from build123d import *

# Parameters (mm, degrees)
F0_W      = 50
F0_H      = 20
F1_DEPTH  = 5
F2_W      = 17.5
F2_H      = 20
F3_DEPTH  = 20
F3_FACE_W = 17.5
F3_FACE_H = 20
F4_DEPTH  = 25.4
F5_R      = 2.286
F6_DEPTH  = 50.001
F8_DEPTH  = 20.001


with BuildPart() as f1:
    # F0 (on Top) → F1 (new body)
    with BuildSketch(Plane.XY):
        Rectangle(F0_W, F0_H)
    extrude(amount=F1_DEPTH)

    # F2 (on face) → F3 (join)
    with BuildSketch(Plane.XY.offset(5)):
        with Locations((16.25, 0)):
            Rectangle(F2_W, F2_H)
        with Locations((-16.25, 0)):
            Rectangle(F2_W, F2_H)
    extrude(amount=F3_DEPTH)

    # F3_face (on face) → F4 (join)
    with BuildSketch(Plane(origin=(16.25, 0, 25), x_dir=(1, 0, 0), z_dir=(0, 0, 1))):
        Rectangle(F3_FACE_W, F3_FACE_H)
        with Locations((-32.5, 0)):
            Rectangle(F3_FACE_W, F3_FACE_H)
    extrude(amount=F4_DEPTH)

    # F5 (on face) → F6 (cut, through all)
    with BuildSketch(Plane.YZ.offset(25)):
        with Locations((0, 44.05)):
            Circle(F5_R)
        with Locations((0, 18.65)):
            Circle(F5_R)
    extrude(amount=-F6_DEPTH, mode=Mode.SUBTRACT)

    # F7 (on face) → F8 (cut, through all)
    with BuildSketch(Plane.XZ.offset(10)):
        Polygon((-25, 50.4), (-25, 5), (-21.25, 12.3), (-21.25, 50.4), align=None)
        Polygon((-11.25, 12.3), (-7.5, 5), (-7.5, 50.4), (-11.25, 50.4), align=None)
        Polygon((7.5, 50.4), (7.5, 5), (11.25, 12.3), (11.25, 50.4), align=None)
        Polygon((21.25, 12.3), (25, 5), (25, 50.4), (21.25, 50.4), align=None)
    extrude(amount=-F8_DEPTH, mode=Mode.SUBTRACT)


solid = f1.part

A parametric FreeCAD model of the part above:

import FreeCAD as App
import Part
import Sketcher

doc = App.newDocument("Part")
params = doc.addObject("Spreadsheet::Sheet", "Params")
for row, (alias, value) in enumerate([
    ("sketch1_width", "50 mm"),
    ("sketch1_height", "20 mm"),
    ("pad1_length", "5 mm"),
    ("sketch2_height", "20 mm"),
    ("sketch2_width", "17.5 mm"),
    ("pad2_length", "20 mm"),
    ("sketch3_height", "20 mm"),
    ("sketch3_width", "17.5 mm"),
    ("pad3_length", "25.4 mm"),
    ("sketch5_height", "45.4 mm"),
    ("sketch5_height2", "38.1 mm"),
], start=1):
    params.set(f"A{row}", alias)
    params.set(f"B{row}", "=" + value)
    params.setAlias(f"B{row}", alias)

body = doc.addObject("PartDesign::Body", "Body")

# Sketch on XY plane
sketch1 = doc.addObject("Sketcher::SketchObject", "Sketch")
body.addObject(sketch1)
sketch1.AttachmentSupport = (doc.XY_Plane, [""])
sketch1.MapMode = "FlatFace"
sketch1.addGeometry(Part.LineSegment(App.Vector(-25, 10, 0), App.Vector(-25, -10, 0)), False)
sketch1.addGeometry(Part.LineSegment(App.Vector(-25, -10, 0), App.Vector(25, -10, 0)), False)
sketch1.addGeometry(Part.LineSegment(App.Vector(25, -10, 0), App.Vector(25, 10, 0)), False)
sketch1.addGeometry(Part.LineSegment(App.Vector(25, 10, 0), App.Vector(-25, 10, 0)), False)
sketch1.addConstraint(Sketcher.Constraint("Coincident", 0, 2, 1, 1))
sketch1.addConstraint(Sketcher.Constraint("Coincident", 1, 2, 2, 1))
sketch1.addConstraint(Sketcher.Constraint("Coincident", 2, 2, 3, 1))
sketch1.addConstraint(Sketcher.Constraint("Coincident", 3, 2, 0, 1))
sketch1.addConstraint(Sketcher.Constraint("Vertical", 0))
sketch1.addConstraint(Sketcher.Constraint("Horizontal", 1))
sketch1.addConstraint(Sketcher.Constraint("Vertical", 2))
sketch1.addConstraint(Sketcher.Constraint("Horizontal", 3))
sketch1.addConstraint(Sketcher.Constraint("Symmetric", 0, 2, 2, 2, -1, 1))
sketch1.addConstraint(Sketcher.Constraint("DistanceX", 1, 1, 1, 2, 50.0))
sketch1.addConstraint(Sketcher.Constraint("DistanceY", 0, 2, 0, 1, 20.0))
sketch1.setExpression("Constraints[9]", "Params.sketch1_width")
sketch1.setExpression("Constraints[10]", "Params.sketch1_height")
pad1 = doc.addObject("PartDesign::Pad", "Pad")
body.addObject(pad1)
pad1.Profile = sketch1
pad1.setExpression("Length", "Params.pad1_length")

# Sketch on XY plane
sketch2 = doc.addObject("Sketcher::SketchObject", "Sketch001")
body.addObject(sketch2)
sketch2.AttachmentSupport = (doc.XY_Plane, [""])
sketch2.MapMode = "FlatFace"
sketch2.AttachmentOffset = App.Placement(App.Vector(0, 0, 5), App.Rotation())
sketch2.addGeometry(Part.LineSegment(App.Vector(8, 10, 0), App.Vector(8, -10, 0)), False)
sketch2.addGeometry(Part.LineSegment(App.Vector(8, -10, 0), App.Vector(25, -10, 0)), False)
sketch2.addGeometry(Part.LineSegment(App.Vector(25, -10, 0), App.Vector(25, 10, 0)), False)
sketch2.addGeometry(Part.LineSegment(App.Vector(25, 10, 0), App.Vector(8, 10, 0)), False)
sketch2.addGeometry(Part.LineSegment(App.Vector(-25, 10, 0), App.Vector(-25, -10, 0)), False)
sketch2.addGeometry(Part.LineSegment(App.Vector(-25, -10, 0), App.Vector(-8, -10, 0)), False)
sketch2.addGeometry(Part.LineSegment(App.Vector(-8, -10, 0), App.Vector(-8, 10, 0)), False)
sketch2.addGeometry(Part.LineSegment(App.Vector(-8, 10, 0), App.Vector(-25, 10, 0)), False)
sketch2.addConstraint(Sketcher.Constraint("Coincident", 0, 2, 1, 1))
sketch2.addConstraint(Sketcher.Constraint("Coincident", 1, 2, 2, 1))
sketch2.addConstraint(Sketcher.Constraint("Coincident", 2, 2, 3, 1))
sketch2.addConstraint(Sketcher.Constraint("Coincident", 3, 2, 0, 1))
sketch2.addConstraint(Sketcher.Constraint("Coincident", 4, 2, 5, 1))
sketch2.addConstraint(Sketcher.Constraint("Coincident", 5, 2, 6, 1))
sketch2.addConstraint(Sketcher.Constraint("Coincident", 6, 2, 7, 1))
sketch2.addConstraint(Sketcher.Constraint("Coincident", 7, 2, 4, 1))
sketch2.addConstraint(Sketcher.Constraint("Vertical", 0))
sketch2.addConstraint(Sketcher.Constraint("Horizontal", 1))
sketch2.addConstraint(Sketcher.Constraint("Vertical", 2))
sketch2.addConstraint(Sketcher.Constraint("Horizontal", 3))
sketch2.addConstraint(Sketcher.Constraint("Vertical", 4))
sketch2.addConstraint(Sketcher.Constraint("Horizontal", 5))
sketch2.addConstraint(Sketcher.Constraint("Vertical", 6))
sketch2.addConstraint(Sketcher.Constraint("Horizontal", 7))
sketch2.addConstraint(Sketcher.Constraint("Symmetric", 2, 2, 4, 2, -1, 1))
sketch2.addConstraint(Sketcher.Constraint("Symmetric", 0, 2, 6, 2, -1, 1))
sketch2.addConstraint(Sketcher.Constraint("Horizontal", 1, 2, 4, 2))
sketch2.addConstraint(Sketcher.Constraint("DistanceY", 0, 2, 0, 1, 20.0))
sketch2.addConstraint(Sketcher.Constraint("DistanceX", 1, 1, 1, 2, 17.5))
sketch2.addConstraint(Sketcher.Constraint("DistanceX", -1, 1, 1, 2, 25.0))
sketch2.setExpression("Constraints[19]", "Params.sketch2_height")
sketch2.setExpression("Constraints[20]", "Params.sketch2_width")
pad2 = doc.addObject("PartDesign::Pad", "Pad001")
body.addObject(pad2)
pad2.Profile = sketch2
pad2.setExpression("Length", "Params.pad2_length")

# Sketch on XY plane
sketch3 = doc.addObject("Sketcher::SketchObject", "Sketch002")
body.addObject(sketch3)
sketch3.AttachmentSupport = (doc.XY_Plane, [""])
sketch3.MapMode = "FlatFace"
sketch3.AttachmentOffset = App.Placement(App.Vector(0, 0, 25), App.Rotation())
sketch3.addGeometry(Part.LineSegment(App.Vector(8, 10, 0), App.Vector(8, -10, 0)), False)
sketch3.addGeometry(Part.LineSegment(App.Vector(8, -10, 0), App.Vector(25, -10, 0)), False)
sketch3.addGeometry(Part.LineSegment(App.Vector(25, -10, 0), App.Vector(25, 10, 0)), False)
sketch3.addGeometry(Part.LineSegment(App.Vector(25, 10, 0), App.Vector(8, 10, 0)), False)
sketch3.addGeometry(Part.LineSegment(App.Vector(-25, 10, 0), App.Vector(-25, -10, 0)), False)
sketch3.addGeometry(Part.LineSegment(App.Vector(-25, -10, 0), App.Vector(-8, -10, 0)), False)
sketch3.addGeometry(Part.LineSegment(App.Vector(-8, -10, 0), App.Vector(-8, 10, 0)), False)
sketch3.addGeometry(Part.LineSegment(App.Vector(-8, 10, 0), App.Vector(-25, 10, 0)), False)
sketch3.addConstraint(Sketcher.Constraint("Coincident", 0, 2, 1, 1))
sketch3.addConstraint(Sketcher.Constraint("Coincident", 1, 2, 2, 1))
sketch3.addConstraint(Sketcher.Constraint("Coincident", 2, 2, 3, 1))
sketch3.addConstraint(Sketcher.Constraint("Coincident", 3, 2, 0, 1))
sketch3.addConstraint(Sketcher.Constraint("Coincident", 4, 2, 5, 1))
sketch3.addConstraint(Sketcher.Constraint("Coincident", 5, 2, 6, 1))
sketch3.addConstraint(Sketcher.Constraint("Coincident", 6, 2, 7, 1))
sketch3.addConstraint(Sketcher.Constraint("Coincident", 7, 2, 4, 1))
sketch3.addConstraint(Sketcher.Constraint("Vertical", 0))
sketch3.addConstraint(Sketcher.Constraint("Horizontal", 1))
sketch3.addConstraint(Sketcher.Constraint("Vertical", 2))
sketch3.addConstraint(Sketcher.Constraint("Horizontal", 3))
sketch3.addConstraint(Sketcher.Constraint("Vertical", 4))
sketch3.addConstraint(Sketcher.Constraint("Horizontal", 5))
sketch3.addConstraint(Sketcher.Constraint("Vertical", 6))
sketch3.addConstraint(Sketcher.Constraint("Horizontal", 7))
sketch3.addConstraint(Sketcher.Constraint("Symmetric", 2, 2, 4, 2, -1, 1))
sketch3.addConstraint(Sketcher.Constraint("Symmetric", 0, 2, 6, 2, -1, 1))
sketch3.addConstraint(Sketcher.Constraint("Horizontal", 1, 2, 4, 2))
sketch3.addConstraint(Sketcher.Constraint("DistanceY", 0, 2, 0, 1, 20.0))
sketch3.addConstraint(Sketcher.Constraint("DistanceX", 1, 1, 1, 2, 17.5))
sketch3.addConstraint(Sketcher.Constraint("DistanceX", -1, 1, 1, 2, 25.0))
sketch3.setExpression("Constraints[19]", "Params.sketch3_height")
sketch3.setExpression("Constraints[20]", "Params.sketch3_width")
pad3 = doc.addObject("PartDesign::Pad", "Pad002")
body.addObject(pad3)
pad3.Profile = sketch3
pad3.setExpression("Length", "Params.pad3_length")

# Sketch on YZ plane
sketch4 = doc.addObject("Sketcher::SketchObject", "Sketch003")
body.addObject(sketch4)
sketch4.AttachmentSupport = (doc.YZ_Plane, [""])
sketch4.MapMode = "FlatFace"
sketch4.AttachmentOffset = App.Placement(App.Vector(0, 0, 25), App.Rotation())
sketch4.addGeometry(Part.Circle(App.Vector(0, 44, 0), App.Vector(0, 0, 1), 2.3), False)
sketch4.addGeometry(Part.Circle(App.Vector(0, 18.6, 0), App.Vector(0, 0, 1), 2.3), False)
sketch4.addConstraint(Sketcher.Constraint("Equal", 0, 1))
sketch4.addConstraint(Sketcher.Constraint("PointOnObject", 0, 3, -2))
sketch4.addConstraint(Sketcher.Constraint("PointOnObject", 1, 3, -2))
sketch4.addConstraint(Sketcher.Constraint("Diameter", 0, 4.572))
sketch4.addConstraint(Sketcher.Constraint("DistanceY", 1, 3, 0, 3, 25.4))
sketch4.addConstraint(Sketcher.Constraint("DistanceY", -1, 1, 0, 3, 44.05))
pocket1 = doc.addObject("PartDesign::Pocket", "Pocket")
body.addObject(pocket1)
pocket1.Profile = sketch4
pocket1.Type = "ThroughAll"

# Sketch on XZ plane
sketch5 = doc.addObject("Sketcher::SketchObject", "Sketch004")
body.addObject(sketch5)
sketch5.AttachmentSupport = (doc.XZ_Plane, [""])
sketch5.MapMode = "FlatFace"
sketch5.AttachmentOffset = App.Placement(App.Vector(0, 0, 10), App.Rotation())
sketch5.addGeometry(Part.LineSegment(App.Vector(-25, 50.4, 0), App.Vector(-25, 5, 0)), False)
sketch5.addGeometry(Part.LineSegment(App.Vector(-25, 5, 0), App.Vector(-21.2, 12.3, 0)), False)
sketch5.addGeometry(Part.LineSegment(App.Vector(-21.2, 12.3, 0), App.Vector(-21.2, 50.4, 0)), False)
sketch5.addGeometry(Part.LineSegment(App.Vector(-21.2, 50.4, 0), App.Vector(-25, 50.4, 0)), False)
sketch5.addGeometry(Part.LineSegment(App.Vector(-11.2, 12.3, 0), App.Vector(-7.5, 5, 0)), False)
sketch5.addGeometry(Part.LineSegment(App.Vector(-7.5, 5, 0), App.Vector(-7.5, 50.4, 0)), False)
sketch5.addGeometry(Part.LineSegment(App.Vector(-7.5, 50.4, 0), App.Vector(-11.2, 50.4, 0)), False)
sketch5.addGeometry(Part.LineSegment(App.Vector(-11.2, 50.4, 0), App.Vector(-11.2, 12.3, 0)), False)
sketch5.addGeometry(Part.LineSegment(App.Vector(7.5, 50.4, 0), App.Vector(7.5, 5, 0)), False)
sketch5.addGeometry(Part.LineSegment(App.Vector(7.5, 5, 0), App.Vector(11.2, 12.3, 0)), False)
sketch5.addGeometry(Part.LineSegment(App.Vector(11.2, 12.3, 0), App.Vector(11.2, 50.4, 0)), False)
sketch5.addGeometry(Part.LineSegment(App.Vector(11.2, 50.4, 0), App.Vector(7.5, 50.4, 0)), False)
sketch5.addGeometry(Part.LineSegment(App.Vector(21.2, 12.3, 0), App.Vector(25, 5, 0)), False)
sketch5.addGeometry(Part.LineSegment(App.Vector(25, 5, 0), App.Vector(25, 50.4, 0)), False)
sketch5.addGeometry(Part.LineSegment(App.Vector(25, 50.4, 0), App.Vector(21.2, 50.4, 0)), False)
sketch5.addGeometry(Part.LineSegment(App.Vector(21.2, 50.4, 0), App.Vector(21.2, 12.3, 0)), False)
sketch5.addConstraint(Sketcher.Constraint("Coincident", 0, 2, 1, 1))
sketch5.addConstraint(Sketcher.Constraint("Coincident", 1, 2, 2, 1))
sketch5.addConstraint(Sketcher.Constraint("Coincident", 2, 2, 3, 1))
sketch5.addConstraint(Sketcher.Constraint("Coincident", 3, 2, 0, 1))
sketch5.addConstraint(Sketcher.Constraint("Coincident", 4, 2, 5, 1))
sketch5.addConstraint(Sketcher.Constraint("Coincident", 5, 2, 6, 1))
sketch5.addConstraint(Sketcher.Constraint("Coincident", 6, 2, 7, 1))
sketch5.addConstraint(Sketcher.Constraint("Coincident", 7, 2, 4, 1))
sketch5.addConstraint(Sketcher.Constraint("Coincident", 8, 2, 9, 1))
sketch5.addConstraint(Sketcher.Constraint("Coincident", 9, 2, 10, 1))
sketch5.addConstraint(Sketcher.Constraint("Coincident", 10, 2, 11, 1))
sketch5.addConstraint(Sketcher.Constraint("Coincident", 11, 2, 8, 1))
sketch5.addConstraint(Sketcher.Constraint("Coincident", 12, 2, 13, 1))
sketch5.addConstraint(Sketcher.Constraint("Coincident", 13, 2, 14, 1))
sketch5.addConstraint(Sketcher.Constraint("Coincident", 14, 2, 15, 1))
sketch5.addConstraint(Sketcher.Constraint("Coincident", 15, 2, 12, 1))
sketch5.addConstraint(Sketcher.Constraint("Vertical", 0))
sketch5.addConstraint(Sketcher.Constraint("Vertical", 2))
sketch5.addConstraint(Sketcher.Constraint("Horizontal", 3))
sketch5.addConstraint(Sketcher.Constraint("Vertical", 5))
sketch5.addConstraint(Sketcher.Constraint("Horizontal", 6))
sketch5.addConstraint(Sketcher.Constraint("Vertical", 7))
sketch5.addConstraint(Sketcher.Constraint("Vertical", 8))
sketch5.addConstraint(Sketcher.Constraint("Vertical", 10))
sketch5.addConstraint(Sketcher.Constraint("Horizontal", 11))
sketch5.addConstraint(Sketcher.Constraint("Vertical", 13))
sketch5.addConstraint(Sketcher.Constraint("Horizontal", 14))
sketch5.addConstraint(Sketcher.Constraint("Vertical", 15))
sketch5.addConstraint(Sketcher.Constraint("Symmetric", 4, 2, 8, 2, -2))
sketch5.addConstraint(Sketcher.Constraint("Symmetric", 7, 2, 9, 2, -2))
sketch5.addConstraint(Sketcher.Constraint("Symmetric", 0, 2, 12, 2, -2))
sketch5.addConstraint(Sketcher.Constraint("Symmetric", 2, 2, 14, 2, -2))
sketch5.addConstraint(Sketcher.Constraint("Parallel", 1, 9))
sketch5.addConstraint(Sketcher.Constraint("Parallel", 4, 12))
sketch5.addConstraint(Sketcher.Constraint("Horizontal", 0, 2, 4, 2))
sketch5.addConstraint(Sketcher.Constraint("Horizontal", 3, 2, 5, 2))
sketch5.addConstraint(Sketcher.Constraint("Horizontal", 1, 2, 7, 2))
sketch5.addConstraint(Sketcher.Constraint("Horizontal", 6, 2, 10, 2))
sketch5.addConstraint(Sketcher.Constraint("DistanceY", 0, 2, 0, 1, 45.4))
sketch5.addConstraint(Sketcher.Constraint("DistanceY", 2, 1, 2, 2, 38.1))
sketch5.addConstraint(Sketcher.Constraint("DistanceX", 0, 2, -1, 1, 25.0))
sketch5.addConstraint(Sketcher.Constraint("DistanceY", -1, 1, 0, 2, 5.0))
sketch5.addConstraint(Sketcher.Constraint("DistanceX", 2, 2, 6, 2, 10.0))
sketch5.addConstraint(Sketcher.Constraint("DistanceX", 4, 2, 8, 2, 15.0))
sketch5.setExpression("Constraints[38]", "Params.sketch5_height")
sketch5.setExpression("Constraints[39]", "Params.sketch5_height2")
pocket2 = doc.addObject("PartDesign::Pocket", "Pocket001")
body.addObject(pocket2)
pocket2.Profile = sketch5
pocket2.Type = "ThroughAll"

doc.recompute()
